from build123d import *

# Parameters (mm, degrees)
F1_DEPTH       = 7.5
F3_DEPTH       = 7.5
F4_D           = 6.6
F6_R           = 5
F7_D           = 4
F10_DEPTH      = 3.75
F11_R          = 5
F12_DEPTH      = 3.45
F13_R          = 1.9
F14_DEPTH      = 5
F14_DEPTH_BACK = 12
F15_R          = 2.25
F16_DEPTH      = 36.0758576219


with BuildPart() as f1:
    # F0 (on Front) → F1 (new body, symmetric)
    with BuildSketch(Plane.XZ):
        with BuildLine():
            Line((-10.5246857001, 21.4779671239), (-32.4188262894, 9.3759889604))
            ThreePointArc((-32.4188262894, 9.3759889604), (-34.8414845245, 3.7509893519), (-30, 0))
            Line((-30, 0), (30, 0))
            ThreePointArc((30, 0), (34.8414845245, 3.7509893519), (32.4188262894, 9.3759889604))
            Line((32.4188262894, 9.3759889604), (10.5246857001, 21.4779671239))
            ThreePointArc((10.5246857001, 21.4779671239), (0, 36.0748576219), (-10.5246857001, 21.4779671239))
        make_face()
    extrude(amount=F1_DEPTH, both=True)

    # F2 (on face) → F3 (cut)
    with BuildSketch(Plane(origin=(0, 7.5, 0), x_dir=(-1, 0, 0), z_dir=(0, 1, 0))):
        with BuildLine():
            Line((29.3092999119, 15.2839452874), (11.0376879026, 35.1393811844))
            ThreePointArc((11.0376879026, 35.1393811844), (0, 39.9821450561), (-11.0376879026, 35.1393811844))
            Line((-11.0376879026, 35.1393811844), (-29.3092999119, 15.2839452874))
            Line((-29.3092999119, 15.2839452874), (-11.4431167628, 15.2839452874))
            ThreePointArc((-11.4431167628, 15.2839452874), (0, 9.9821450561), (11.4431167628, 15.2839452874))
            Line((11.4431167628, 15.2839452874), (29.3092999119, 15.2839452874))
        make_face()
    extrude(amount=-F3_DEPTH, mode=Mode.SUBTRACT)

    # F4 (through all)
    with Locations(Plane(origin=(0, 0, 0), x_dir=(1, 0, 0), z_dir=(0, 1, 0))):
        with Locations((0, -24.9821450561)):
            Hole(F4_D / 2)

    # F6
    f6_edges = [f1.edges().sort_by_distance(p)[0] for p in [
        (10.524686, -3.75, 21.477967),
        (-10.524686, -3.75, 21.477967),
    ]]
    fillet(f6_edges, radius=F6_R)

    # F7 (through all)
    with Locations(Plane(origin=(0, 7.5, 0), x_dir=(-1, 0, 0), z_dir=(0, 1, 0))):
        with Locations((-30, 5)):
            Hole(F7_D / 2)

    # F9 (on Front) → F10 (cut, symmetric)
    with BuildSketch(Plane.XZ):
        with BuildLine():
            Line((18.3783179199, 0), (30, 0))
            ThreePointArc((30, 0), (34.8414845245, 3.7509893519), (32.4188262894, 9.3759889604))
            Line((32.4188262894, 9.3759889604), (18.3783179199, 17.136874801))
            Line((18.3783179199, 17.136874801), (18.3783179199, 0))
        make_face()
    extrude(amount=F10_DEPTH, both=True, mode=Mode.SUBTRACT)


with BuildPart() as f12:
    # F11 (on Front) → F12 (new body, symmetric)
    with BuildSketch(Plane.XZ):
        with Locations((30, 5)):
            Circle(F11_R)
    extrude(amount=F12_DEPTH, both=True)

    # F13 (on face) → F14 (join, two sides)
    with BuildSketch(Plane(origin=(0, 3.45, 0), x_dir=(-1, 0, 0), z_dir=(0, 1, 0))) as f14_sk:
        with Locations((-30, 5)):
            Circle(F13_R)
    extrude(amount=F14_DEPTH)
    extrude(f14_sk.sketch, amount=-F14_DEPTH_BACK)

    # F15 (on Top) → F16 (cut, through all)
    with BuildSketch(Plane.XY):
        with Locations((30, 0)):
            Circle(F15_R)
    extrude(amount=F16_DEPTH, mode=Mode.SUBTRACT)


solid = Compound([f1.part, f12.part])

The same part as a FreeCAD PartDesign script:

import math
import FreeCAD as App
import Part
import Sketcher
Q = App.Units.Quantity


def edges_at(feature, points):
    """Names of the edges that pass closest to the given points."""
    edges = feature.Shape.Edges
    near = lambda p: min(range(len(edges)), key=lambda i: edges[i].distToShape(Part.Vertex(*p))[0])
    return sorted({f"Edge{near(p) + 1}" for p in points})

doc = App.newDocument("Part")
body = doc.addObject("PartDesign::Body", "Body")

# Sketch on XZ plane
sketch1 = body.newObject("Sketcher::SketchObject", "Sketch")
sketch1.AttachmentSupport = (doc.getObject("XZ_Plane"), [""])
sketch1.MapMode = "FlatFace"
sketch1.addGeometry([
    Part.LineSegment(App.Vector(-10.524686, 21.477967, 0), App.Vector(-32.418826, 9.375989, 0)),  # 0
    Part.ArcOfCircle(Part.Circle(App.Vector(-30, 5, 0), App.Vector(0, 0, 1), 5), math.radians(118.931607), math.radians(270)),  # 1
    Part.LineSegment(App.Vector(-30, 0, 0), App.Vector(30, 0, 0)),  # 2
    Part.ArcOfCircle(Part.Circle(App.Vector(30, 5, 0), App.Vector(0, 0, 1), 5), math.radians(-90), math.radians(61.068393)),  # 3
    Part.LineSegment(App.Vector(32.418826, 9.375989, 0), App.Vector(10.524686, 21.477967, 0)),  # 4
    Part.ArcOfCircle(Part.Circle(App.Vector(0, 24.982145, 0), App.Vector(0, 0, 1), 11.092713), math.radians(-18.4151), math.radians(198.4151)),  # 5
], False)
sketch1.addConstraint([
    Sketcher.Constraint("Tangent", 0, 2, 1, 1),
    Sketcher.Constraint("Tangent", 1, 2, 2, 1),
    Sketcher.Constraint("Tangent", 2, 2, 3, 1),
    Sketcher.Constraint("Tangent", 3, 2, 4, 1),
    Sketcher.Constraint("Coincident", 4, 2, 5, 1),
    Sketcher.Constraint("Coincident", 5, 2, 0, 1),
    Sketcher.Constraint("Horizontal", 2),
    Sketcher.Constraint("Equal", 1, 3),
    Sketcher.Constraint("Symmetric", 1, 2, 2, 2, -1, 1),
    Sketcher.Constraint("Symmetric", 4, 2, 5, 2, -2),
    Sketcher.Constraint("Radius", 1, Q("5 mm")),
    Sketcher.Constraint("DistanceX", 2, 1, 2, 2, Q("60 mm")),
    Sketcher.Constraint("Radius", 5, Q("11.092713 mm")),
    Sketcher.Constraint("Distance", 0, Q("25.01622 mm")),
    Sketcher.Constraint("DistanceY", -1, 1, 0, 2, Q("9.375989 mm")),
])
pad1 = body.newObject("PartDesign::Pad", "Pad")
pad1.Profile = sketch1
pad1.Length = 15
pad1.Midplane = True

# Sketch on XZ plane
sketch2 = body.newObject("Sketcher::SketchObject", "Sketch001")
sketch2.AttachmentSupport = (doc.getObject("XZ_Plane"), [""])
sketch2.MapMode = "FlatFace"
sketch2.AttachmentOffset = App.Placement(App.Vector(0, 0, -7.5), App.Rotation())
sketch2.addGeometry([
    Part.LineSegment(App.Vector(-29.3093, 15.283945, 0), App.Vector(-11.037688, 35.139381, 0)),  # 0
    Part.ArcOfCircle(Part.Circle(App.Vector(0, 24.982145, 0), App.Vector(0, 0, 1), 15), math.radians(42.621261), math.radians(137.378739)),  # 1
    Part.LineSegment(App.Vector(11.037688, 35.139381, 0), App.Vector(29.3093, 15.283945, 0)),  # 2
    Part.LineSegment(App.Vector(29.3093, 15.283945, 0), App.Vector(11.443117, 15.283945, 0)),  # 3
    Part.ArcOfCircle(Part.Circle(App.Vector(0, 24.982145, 0), App.Vector(0, 0, 1), 15), math.radians(-139.718263), math.radians(-40.281737)),  # 4
    Part.LineSegment(App.Vector(-11.443117, 15.283945, 0), App.Vector(-29.3093, 15.283945, 0)),  # 5
], False)
sketch2.addConstraint([
    Sketcher.Constraint("Tangent", 0, 2, 1, 2),
    Sketcher.Constraint("Tangent", 1, 1, 2, 1),
    Sketcher.Constraint("Coincident", 2, 2, 3, 1),
    Sketcher.Constraint("Coincident", 3, 2, 4, 2),
    Sketcher.Constraint("Coincident", 4, 1, 5, 1),
    Sketcher.Constraint("Coincident", 5, 2, 0, 1),
    Sketcher.Constraint("Horizontal", 3),
    Sketcher.Constraint("Horizontal", 5),
    Sketcher.Constraint("Coincident", 4, 3, 1, 3),
    Sketcher.Constraint("Equal", 1, 4),
    Sketcher.Constraint("Symmetric", 0, 2, 1, 1, -2),
    Sketcher.Constraint("Horizontal", 3, 2, 4, 1),
    Sketcher.Constraint("Radius", 1, Q("15 mm")),
    Sketcher.Constraint("DistanceX", -1, 1, 2, 2, Q("29.3093 mm")),
    Sketcher.Constraint("DistanceY", 2, 2, 1, 3, Q("9.6982 mm")),
    Sketcher.Constraint("DistanceY", -1, 1, 0, 2, Q("35.139381 mm")),
])
pocket1 = body.newObject("PartDesign::Pocket", "Pocket")
pocket1.Profile = sketch2
pocket1.Length = 7.5
pocket1.Reversed = True

# Sketch on XZ plane
sketch3 = body.newObject("Sketcher::SketchObject", "Sketch002")
sketch3.AttachmentSupport = (doc.getObject("XZ_Plane"), [""])
sketch3.MapMode = "FlatFace"
sketch3.addGeometry(Part.Circle(App.Vector(0, 24.982145, 0), App.Vector(0, 0, 1), 3.3), False)
sketch3.addConstraint([
    Sketcher.Constraint("PointOnObject", 0, 3, -2),
    Sketcher.Constraint("Diameter", 0, Q("6.6 mm")),
    Sketcher.Constraint("DistanceY", -1, 1, 0, 3, Q("24.982145 mm")),
])
doc.recompute()
hole = body.newObject("PartDesign::Hole", "Hole")
hole.Profile = sketch3
hole.ThreadType = "None"
hole.Diameter = 6.6
hole.DepthType = "ThroughAll"
hole.Reversed = True
doc.recompute()

fillet = body.newObject("PartDesign::Fillet", "Fillet")
fillet.Base = (hole, edges_at(hole, [(10.525, -3.75, 21.478), (-10.525, -3.75, 21.478)]))
fillet.Radius = 5

# Sketch on XZ plane
sketch4 = body.newObject("Sketcher::SketchObject", "Sketch003")
sketch4.AttachmentSupport = (doc.getObject("XZ_Plane"), [""])
sketch4.MapMode = "FlatFace"
sketch4.AttachmentOffset = App.Placement(App.Vector(0, 0, -7.5), App.Rotation())
sketch4.addGeometry(Part.Circle(App.Vector(30, 5, 0), App.Vector(0, 0, 1), 2), False)
sketch4.addConstraint([
    Sketcher.Constraint("Diameter", 0, Q("4 mm")),
    Sketcher.Constraint("DistanceX", -1, 1, 0, 3, Q("30 mm")),
    Sketcher.Constraint("DistanceY", -1, 1, 0, 3, Q("5 mm")),
])
doc.recompute()
hole2 = body.newObject("PartDesign::Hole", "Hole001")
hole2.Profile = sketch4
hole2.ThreadType = "None"
hole2.Diameter = 4
hole2.DepthType = "ThroughAll"
hole2.Reversed = True

# Sketch on XZ plane
sketch5 = body.newObject("Sketcher::SketchObject", "Sketch004")
sketch5.AttachmentSupport = (doc.getObject("XZ_Plane"), [""])
sketch5.MapMode = "FlatFace"
sketch5.addGeometry([
    Part.LineSegment(App.Vector(18.378318, 0, 0), App.Vector(30, 0, 0)),
    Part.ArcOfCircle(Part.Circle(App.Vector(30, 5, 0), App.Vector(0, 0, 1), 5), math.radians(-90), math.radians(61.068393)),
    Part.LineSegment(App.Vector(32.418826, 9.375989, 0), App.Vector(18.378318, 17.136875, 0)),
    Part.LineSegment(App.Vector(18.378318, 17.136875, 0), App.Vector(18.378318, 0, 0)),
], False)
sketch5.addConstraint([
    Sketcher.Constraint("Tangent", 0, 2, 1, 1),
    Sketcher.Constraint("Tangent", 1, 2, 2, 1),
    Sketcher.Constraint("Coincident", 2, 2, 3, 1),
    Sketcher.Constraint("Coincident", 3, 2, 0, 1),
    Sketcher.Constraint("Horizontal", 0),
    Sketcher.Constraint("Vertical", 3),
    Sketcher.Constraint("PointOnObject", 0, 2, -1),
    Sketcher.Constraint("Radius", 1, Q("5 mm")),
    Sketcher.Constraint("DistanceX", -1, 1, 1, 3, Q("30 mm")),
    Sketcher.Constraint("Distance", 2, Q("16.042669 mm")),
    Sketcher.Constraint("DistanceX", 0, 1, 0, 2, Q("11.621682 mm")),
])
pocket2 = body.newObject("PartDesign::Pocket", "Pocket001")
pocket2.Profile = sketch5
pocket2.Length = 7.5
pocket2.Midplane = True
body2 = doc.addObject("PartDesign::Body", "Body001")

# Sketch on XZ plane
sketch6 = body2.newObject("Sketcher::SketchObject", "Sketch005")
sketch6.AttachmentSupport = (doc.getObject("XZ_Plane001"), [""])
sketch6.MapMode = "FlatFace"
sketch6.addGeometry(Part.Circle(App.Vector(30, 5, 0), App.Vector(0, 0, 1), 5), False)
sketch6.addConstraint([
    Sketcher.Constraint("Diameter", 0, Q("10 mm")),
    Sketcher.Constraint("DistanceX", -1, 1, 0, 3, Q("30 mm")),
    Sketcher.Constraint("DistanceY", -1, 1, 0, 3, Q("5 mm")),
])
pad2 = body2.newObject("PartDesign::Pad", "Pad001")
pad2.Profile = sketch6
pad2.Length = 6.9
pad2.Midplane = True

# Sketch on XZ plane
sketch7 = body2.newObject("Sketcher::SketchObject", "Sketch006")
sketch7.AttachmentSupport = (doc.getObject("XZ_Plane001"), [""])
sketch7.MapMode = "FlatFace"
sketch7.AttachmentOffset = App.Placement(App.Vector(0, 0, -3.45), App.Rotation())
sketch7.addGeometry(Part.Circle(App.Vector(30, 5, 0), App.Vector(0, 0, 1), 1.9), False)
sketch7.addConstraint([
    Sketcher.Constraint("Diameter", 0, Q("3.8 mm")),
    Sketcher.Constraint("DistanceX", -1, 1, 0, 3, Q("30 mm")),
    Sketcher.Constraint("DistanceY", -1, 1, 0, 3, Q("5 mm")),
])
pad3 = body2.newObject("PartDesign::Pad", "Pad002")
pad3.Profile = sketch7
pad3.Type = "TwoLengths"
pad3.Length = 5
pad3.Length2 = 12
pad3.Reversed = True

# Sketch on XY plane
sketch8 = body2.newObject("Sketcher::SketchObject", "Sketch007")
sketch8.AttachmentSupport = (doc.getObject("XY_Plane001"), [""])
sketch8.MapMode = "FlatFace"
sketch8.addGeometry(Part.Circle(App.Vector(30, 0, 0), App.Vector(0, 0, 1), 2.25), False)
sketch8.addConstraint([
    Sketcher.Constraint("PointOnObject", 0, 3, -1),
    Sketcher.Constraint("Diameter", 0, Q("4.5 mm")),
    Sketcher.Constraint("DistanceX", -1, 1, 0, 3, Q("30 mm")),
])
pocket3 = body2.newObject("PartDesign::Pocket", "Pocket002")
pocket3.Profile = sketch8
pocket3.Type = "ThroughAll"
pocket3.Reversed = True

doc.recompute()
